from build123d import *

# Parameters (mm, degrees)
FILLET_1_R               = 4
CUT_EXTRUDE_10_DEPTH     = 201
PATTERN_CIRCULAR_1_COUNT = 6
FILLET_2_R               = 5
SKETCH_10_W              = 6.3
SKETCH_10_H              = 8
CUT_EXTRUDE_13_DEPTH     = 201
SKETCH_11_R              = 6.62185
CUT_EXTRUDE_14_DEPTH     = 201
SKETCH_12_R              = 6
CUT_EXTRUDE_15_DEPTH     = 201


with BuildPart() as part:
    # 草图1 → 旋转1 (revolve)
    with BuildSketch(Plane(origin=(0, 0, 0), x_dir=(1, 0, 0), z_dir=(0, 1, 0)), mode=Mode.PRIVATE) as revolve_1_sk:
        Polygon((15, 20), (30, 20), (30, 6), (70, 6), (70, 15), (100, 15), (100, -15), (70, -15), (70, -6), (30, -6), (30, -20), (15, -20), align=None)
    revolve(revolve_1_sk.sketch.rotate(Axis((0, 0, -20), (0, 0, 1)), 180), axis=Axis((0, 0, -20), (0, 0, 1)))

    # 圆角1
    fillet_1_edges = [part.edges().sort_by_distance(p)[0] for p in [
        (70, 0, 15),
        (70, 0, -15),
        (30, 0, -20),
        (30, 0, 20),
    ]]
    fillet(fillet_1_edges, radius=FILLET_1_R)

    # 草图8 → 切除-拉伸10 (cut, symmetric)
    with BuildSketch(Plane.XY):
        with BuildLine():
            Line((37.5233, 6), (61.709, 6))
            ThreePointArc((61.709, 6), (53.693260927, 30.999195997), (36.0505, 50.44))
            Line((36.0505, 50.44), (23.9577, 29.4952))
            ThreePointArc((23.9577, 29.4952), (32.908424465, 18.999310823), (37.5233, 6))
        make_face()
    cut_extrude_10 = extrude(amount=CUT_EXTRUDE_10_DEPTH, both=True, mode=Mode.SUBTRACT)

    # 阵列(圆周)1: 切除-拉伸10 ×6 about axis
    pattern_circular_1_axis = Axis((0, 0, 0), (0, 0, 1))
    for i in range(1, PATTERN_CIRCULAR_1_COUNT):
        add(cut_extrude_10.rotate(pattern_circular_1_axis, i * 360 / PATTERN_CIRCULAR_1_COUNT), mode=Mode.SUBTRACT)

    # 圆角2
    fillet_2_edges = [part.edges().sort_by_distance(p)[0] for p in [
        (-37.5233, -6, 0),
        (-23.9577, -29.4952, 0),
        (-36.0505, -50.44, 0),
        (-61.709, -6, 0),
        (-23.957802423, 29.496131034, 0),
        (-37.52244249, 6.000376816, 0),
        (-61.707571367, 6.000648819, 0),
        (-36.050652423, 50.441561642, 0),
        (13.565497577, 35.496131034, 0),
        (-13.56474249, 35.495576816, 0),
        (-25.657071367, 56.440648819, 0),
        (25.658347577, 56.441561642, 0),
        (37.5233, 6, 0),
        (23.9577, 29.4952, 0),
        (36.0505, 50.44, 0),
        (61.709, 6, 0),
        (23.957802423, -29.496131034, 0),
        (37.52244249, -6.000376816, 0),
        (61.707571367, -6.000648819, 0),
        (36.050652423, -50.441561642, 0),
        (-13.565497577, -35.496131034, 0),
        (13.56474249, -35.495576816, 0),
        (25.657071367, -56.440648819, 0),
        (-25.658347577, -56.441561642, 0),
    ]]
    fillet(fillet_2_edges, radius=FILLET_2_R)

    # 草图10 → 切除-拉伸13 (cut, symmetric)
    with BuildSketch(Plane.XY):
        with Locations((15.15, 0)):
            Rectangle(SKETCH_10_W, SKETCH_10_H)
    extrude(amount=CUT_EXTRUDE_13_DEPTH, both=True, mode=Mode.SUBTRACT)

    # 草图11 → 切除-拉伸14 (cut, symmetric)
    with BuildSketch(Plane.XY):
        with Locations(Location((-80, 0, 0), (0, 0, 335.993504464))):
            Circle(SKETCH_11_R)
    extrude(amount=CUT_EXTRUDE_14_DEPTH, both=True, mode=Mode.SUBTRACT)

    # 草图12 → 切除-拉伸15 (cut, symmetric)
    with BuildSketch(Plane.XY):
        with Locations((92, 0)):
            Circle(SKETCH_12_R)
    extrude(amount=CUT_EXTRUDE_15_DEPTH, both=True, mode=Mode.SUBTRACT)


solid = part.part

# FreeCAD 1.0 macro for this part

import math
import FreeCAD as App
import Part
import Sketcher


def edges_at(feature, points):
    """Names of the edges that pass closest to the given points."""
    edges = feature.Shape.Edges
    near = lambda p: min(range(len(edges)), key=lambda i: edges[i].distToShape(Part.Vertex(*p))[0])
    return sorted({f"Edge{near(p) + 1}" for p in points})


def add_polygon(sketch, points):
    """Adds a closed chain of lines whose ends are joined by coincident constraints."""
    first, n = sketch.GeometryCount, len(points)
    for a, b in zip(points, points[1:] + points[:1]):
        sketch.addGeometry(Part.LineSegment(App.Vector(*a, 0), App.Vector(*b, 0)), False)
    for i in range(n):
        sketch.addConstraint(Sketcher.Constraint("Coincident", first + i, 2, first + (i + 1) % n, 1))

doc = App.newDocument("Part")
body = doc.addObject("PartDesign::Body", "Body")

# Sketch on XZ plane
sketch1 = doc.addObject("Sketcher::SketchObject", "Sketch")
body.addObject(sketch1)
sketch1.AttachmentSupport = (doc.XZ_Plane, [""])
sketch1.MapMode = "FlatFace"
add_polygon(sketch1, [(30, -20), (15, -20), (15, 20), (30, 20), (30, 6), (70, 6), (70, 15), (100, 15), (100, -15), (70, -15), (70, -6), (30, -6)])  # lines 0-11
sketch1.addConstraint([
    Sketcher.Constraint("Horizontal", 0),
    Sketcher.Constraint("Vertical", 1),
    Sketcher.Constraint("Horizontal", 2),
    Sketcher.Constraint("Vertical", 3),
    Sketcher.Constraint("Horizontal", 4),
    Sketcher.Constraint("Vertical", 5),
    Sketcher.Constraint("Horizontal", 6),
    Sketcher.Constraint("Vertical", 7),
    Sketcher.Constraint("Horizontal", 8),
    Sketcher.Constraint("Vertical", 9),
    Sketcher.Constraint("Horizontal", 10),
    Sketcher.Constraint("Vertical", 11),
    Sketcher.Constraint("Symmetric", 5, 2, 8, 2, -1),
    Sketcher.Constraint("Symmetric", 3, 2, 10, 2, -1),
    Sketcher.Constraint("Equal", 10, 1),
    Sketcher.Constraint("Equal", 8, 7),
    Sketcher.Constraint("Equal", 3, 11),
    Sketcher.Constraint("DistanceX", 0, 2, 0, 1, 15.0),
    Sketcher.Constraint("DistanceX", 4, 1, 4, 2, 40.0),
    Sketcher.Constraint("DistanceX", 6, 1, 6, 2, 30.0),
    Sketcher.Constraint("DistanceY", 3, 2, 3, 1, 14.0),
    Sketcher.Constraint("DistanceX", -1, 1, 0, 2, 15.0),
])
revolution = doc.addObject("PartDesign::Revolution", "Revolution")
body.addObject(revolution)
revolution.Profile = sketch1
revolution.ReferenceAxis = (sketch1, ["V_Axis"])
revolution.Angle = 360
doc.recompute()

fillet = doc.addObject("PartDesign::Fillet", "Fillet")
body.addObject(fillet)
fillet.Base = (revolution, edges_at(revolution, [
    (70, 0, 15),
    (70, 0, -15),
    (30, 0, -20),
    (30, 0, 20),
]))
fillet.Radius = 4

# Sketch on XY plane
sketch2 = doc.addObject("Sketcher::SketchObject", "Sketch001")
body.addObject(sketch2)
sketch2.AttachmentSupport = (doc.XY_Plane, [""])
sketch2.MapMode = "FlatFace"
sketch2.addGeometry([
    Part.LineSegment(App.Vector(38, 6, 0), App.Vector(62, 6, 0)),
    Part.ArcOfCircle(Part.Circle(App.Vector(0, 0, 0), App.Vector(0, 0, 1), 62), math.radians(6), math.radians(54)),
    Part.LineSegment(App.Vector(36, 50, 0), App.Vector(24, 29, 0)),
    Part.ArcOfCircle(Part.Circle(App.Vector(0, 0, 0), App.Vector(0, 0, 1), 38), math.radians(9), math.radians(51)),
], False)
sketch2.addConstraint([
    Sketcher.Constraint("Coincident", 0, 2, 1, 1),
    Sketcher.Constraint("Coincident", 1, 2, 2, 1),
    Sketcher.Constraint("Coincident", 2, 2, 3, 2),
    Sketcher.Constraint("Coincident", 3, 1, 0, 1),
    Sketcher.Constraint("Horizontal", 0),
    Sketcher.Constraint("DistanceY", -1, 1, 0, 2, 6.0),
    Sketcher.Constraint("DistanceY", -1, 1, 1, 2, 50.44),
    Sketcher.Constraint("DistanceX", 0, 1, 0, 2, 24.1857),
    Sketcher.Constraint("DistanceX", -1, 1, 0, 2, 61.709),
    Sketcher.Constraint("Radius", 1, 61.999325),
    Sketcher.Constraint("Radius", 3, 38.005162),
    Sketcher.Constraint("DistanceX", -1, 1, 1, 2, 36.0505),
    Sketcher.Constraint("DistanceX", -1, 1, 2, 2, 23.9577),
    Sketcher.Constraint("DistanceY", -1, 1, 2, 2, 29.4952),
])
pocket1 = doc.addObject("PartDesign::Pocket", "Pocket")
body.addObject(pocket1)
pocket1.Profile = sketch2
pocket1.Length = 402
pocket1.Midplane = True
doc.recompute()

polarpattern = doc.addObject("PartDesign::PolarPattern", "PolarPattern")
body.addObject(polarpattern)
polarpattern.Originals = [pocket1]
polarpattern.Axis = (doc.Z_Axis, [""])
polarpattern.Angle = 360
polarpattern.Occurrences = 6
body.Tip = polarpattern
doc.recompute()

fillet2 = doc.addObject("PartDesign::Fillet", "Fillet001")
body.addObject(fillet2)
fillet2.Base = (polarpattern, edges_at(polarpattern, [
    (-37.523, -6, 0),
    (-23.958, -29.495, 0),
    (-36.05, -50.44, 0),
    (-61.709, -6, 0),
    (-23.958, 29.496, 0),
    (-37.522, 6, 0),
    (-61.708, 6.001, 0),
    (-36.051, 50.442, 0),
    (13.565, 35.496, 0),
    (-13.565, 35.496, 0),
    (-25.657, 56.441, 0),
    (25.658, 56.442, 0),
    (37.523, 6, 0),
    (23.958, 29.495, 0),
    (36.05, 50.44, 0),
    (61.709, 6, 0),
    (23.958, -29.496, 0),
    (37.522, -6, 0),
    (61.708, -6.001, 0),
    (36.051, -50.442, 0),
    (-13.565, -35.496, 0),
    (13.565, -35.496, 0),
    (25.657, -56.441, 0),
    (-25.658, -56.442, 0),
]))
fillet2.Radius = 5

# Sketch on XY plane
sketch3 = doc.addObject("Sketcher::SketchObject", "Sketch002")
body.addObject(sketch3)
sketch3.AttachmentSupport = (doc.XY_Plane, [""])
sketch3.MapMode = "FlatFace"
add_polygon(sketch3, [(12, 4), (12, -4), (18, -4), (18, 4)])  # lines 0-3
sketch3.addConstraint([
    Sketcher.Constraint("Vertical", 0),
    Sketcher.Constraint("Horizontal", 1),
    Sketcher.Constraint("Vertical", 2),
    Sketcher.Constraint("Horizontal", 3),
    Sketcher.Constraint("DistanceY", 0, 2, 0, 1, 8.0),
    Sketcher.Constraint("DistanceX", 1, 1, 1, 2, 6.3),
    Sketcher.Constraint("DistanceX", -1, 1, 0, 2, 12.0),
    Sketcher.Constraint("DistanceY", 0, 2, -1, 1, 4.0),
])
pocket2 = doc.addObject("PartDesign::Pocket", "Pocket001")
body.addObject(pocket2)
pocket2.Profile = sketch3
pocket2.Length = 402
pocket2.Midplane = True

# Sketch on XY plane
sketch4 = doc.addObject("Sketcher::SketchObject", "Sketch003")
body.addObject(sketch4)
sketch4.AttachmentSupport = (doc.XY_Plane, [""])
sketch4.MapMode = "FlatFace"
sketch4.addGeometry(Part.Circle(App.Vector(-80, 0, 0), App.Vector(0, 0, 1), 7), False)
sketch4.addConstraint([
    Sketcher.Constraint("PointOnObject", 0, 3, -1),
    Sketcher.Constraint("DistanceX", 0, 3, -1, 1, 80.0),
    Sketcher.Constraint("Diameter", 0, 13.2437),
])
pocket3 = doc.addObject("PartDesign::Pocket", "Pocket002")
body.addObject(pocket3)
pocket3.Profile = sketch4
pocket3.Length = 402
pocket3.Midplane = True

# Sketch on XY plane
sketch5 = doc.addObject("Sketcher::SketchObject", "Sketch004")
body.addObject(sketch5)
sketch5.AttachmentSupport = (doc.XY_Plane, [""])
sketch5.MapMode = "FlatFace"
sketch5.addGeometry(Part.Circle(App.Vector(92, 0, 0), App.Vector(0, 0, 1), 6), False)
sketch5.addConstraint([
    Sketcher.Constraint("PointOnObject", 0, 3, -1),
    Sketcher.Constraint("Diameter", 0, 12.0),
    Sketcher.Constraint("DistanceX", -1, 1, 0, 3, 92.0),
])
pocket4 = doc.addObject("PartDesign::Pocket", "Pocket003")
body.addObject(pocket4)
pocket4.Profile = sketch5
pocket4.Length = 402
pocket4.Midplane = True

doc.recompute()
